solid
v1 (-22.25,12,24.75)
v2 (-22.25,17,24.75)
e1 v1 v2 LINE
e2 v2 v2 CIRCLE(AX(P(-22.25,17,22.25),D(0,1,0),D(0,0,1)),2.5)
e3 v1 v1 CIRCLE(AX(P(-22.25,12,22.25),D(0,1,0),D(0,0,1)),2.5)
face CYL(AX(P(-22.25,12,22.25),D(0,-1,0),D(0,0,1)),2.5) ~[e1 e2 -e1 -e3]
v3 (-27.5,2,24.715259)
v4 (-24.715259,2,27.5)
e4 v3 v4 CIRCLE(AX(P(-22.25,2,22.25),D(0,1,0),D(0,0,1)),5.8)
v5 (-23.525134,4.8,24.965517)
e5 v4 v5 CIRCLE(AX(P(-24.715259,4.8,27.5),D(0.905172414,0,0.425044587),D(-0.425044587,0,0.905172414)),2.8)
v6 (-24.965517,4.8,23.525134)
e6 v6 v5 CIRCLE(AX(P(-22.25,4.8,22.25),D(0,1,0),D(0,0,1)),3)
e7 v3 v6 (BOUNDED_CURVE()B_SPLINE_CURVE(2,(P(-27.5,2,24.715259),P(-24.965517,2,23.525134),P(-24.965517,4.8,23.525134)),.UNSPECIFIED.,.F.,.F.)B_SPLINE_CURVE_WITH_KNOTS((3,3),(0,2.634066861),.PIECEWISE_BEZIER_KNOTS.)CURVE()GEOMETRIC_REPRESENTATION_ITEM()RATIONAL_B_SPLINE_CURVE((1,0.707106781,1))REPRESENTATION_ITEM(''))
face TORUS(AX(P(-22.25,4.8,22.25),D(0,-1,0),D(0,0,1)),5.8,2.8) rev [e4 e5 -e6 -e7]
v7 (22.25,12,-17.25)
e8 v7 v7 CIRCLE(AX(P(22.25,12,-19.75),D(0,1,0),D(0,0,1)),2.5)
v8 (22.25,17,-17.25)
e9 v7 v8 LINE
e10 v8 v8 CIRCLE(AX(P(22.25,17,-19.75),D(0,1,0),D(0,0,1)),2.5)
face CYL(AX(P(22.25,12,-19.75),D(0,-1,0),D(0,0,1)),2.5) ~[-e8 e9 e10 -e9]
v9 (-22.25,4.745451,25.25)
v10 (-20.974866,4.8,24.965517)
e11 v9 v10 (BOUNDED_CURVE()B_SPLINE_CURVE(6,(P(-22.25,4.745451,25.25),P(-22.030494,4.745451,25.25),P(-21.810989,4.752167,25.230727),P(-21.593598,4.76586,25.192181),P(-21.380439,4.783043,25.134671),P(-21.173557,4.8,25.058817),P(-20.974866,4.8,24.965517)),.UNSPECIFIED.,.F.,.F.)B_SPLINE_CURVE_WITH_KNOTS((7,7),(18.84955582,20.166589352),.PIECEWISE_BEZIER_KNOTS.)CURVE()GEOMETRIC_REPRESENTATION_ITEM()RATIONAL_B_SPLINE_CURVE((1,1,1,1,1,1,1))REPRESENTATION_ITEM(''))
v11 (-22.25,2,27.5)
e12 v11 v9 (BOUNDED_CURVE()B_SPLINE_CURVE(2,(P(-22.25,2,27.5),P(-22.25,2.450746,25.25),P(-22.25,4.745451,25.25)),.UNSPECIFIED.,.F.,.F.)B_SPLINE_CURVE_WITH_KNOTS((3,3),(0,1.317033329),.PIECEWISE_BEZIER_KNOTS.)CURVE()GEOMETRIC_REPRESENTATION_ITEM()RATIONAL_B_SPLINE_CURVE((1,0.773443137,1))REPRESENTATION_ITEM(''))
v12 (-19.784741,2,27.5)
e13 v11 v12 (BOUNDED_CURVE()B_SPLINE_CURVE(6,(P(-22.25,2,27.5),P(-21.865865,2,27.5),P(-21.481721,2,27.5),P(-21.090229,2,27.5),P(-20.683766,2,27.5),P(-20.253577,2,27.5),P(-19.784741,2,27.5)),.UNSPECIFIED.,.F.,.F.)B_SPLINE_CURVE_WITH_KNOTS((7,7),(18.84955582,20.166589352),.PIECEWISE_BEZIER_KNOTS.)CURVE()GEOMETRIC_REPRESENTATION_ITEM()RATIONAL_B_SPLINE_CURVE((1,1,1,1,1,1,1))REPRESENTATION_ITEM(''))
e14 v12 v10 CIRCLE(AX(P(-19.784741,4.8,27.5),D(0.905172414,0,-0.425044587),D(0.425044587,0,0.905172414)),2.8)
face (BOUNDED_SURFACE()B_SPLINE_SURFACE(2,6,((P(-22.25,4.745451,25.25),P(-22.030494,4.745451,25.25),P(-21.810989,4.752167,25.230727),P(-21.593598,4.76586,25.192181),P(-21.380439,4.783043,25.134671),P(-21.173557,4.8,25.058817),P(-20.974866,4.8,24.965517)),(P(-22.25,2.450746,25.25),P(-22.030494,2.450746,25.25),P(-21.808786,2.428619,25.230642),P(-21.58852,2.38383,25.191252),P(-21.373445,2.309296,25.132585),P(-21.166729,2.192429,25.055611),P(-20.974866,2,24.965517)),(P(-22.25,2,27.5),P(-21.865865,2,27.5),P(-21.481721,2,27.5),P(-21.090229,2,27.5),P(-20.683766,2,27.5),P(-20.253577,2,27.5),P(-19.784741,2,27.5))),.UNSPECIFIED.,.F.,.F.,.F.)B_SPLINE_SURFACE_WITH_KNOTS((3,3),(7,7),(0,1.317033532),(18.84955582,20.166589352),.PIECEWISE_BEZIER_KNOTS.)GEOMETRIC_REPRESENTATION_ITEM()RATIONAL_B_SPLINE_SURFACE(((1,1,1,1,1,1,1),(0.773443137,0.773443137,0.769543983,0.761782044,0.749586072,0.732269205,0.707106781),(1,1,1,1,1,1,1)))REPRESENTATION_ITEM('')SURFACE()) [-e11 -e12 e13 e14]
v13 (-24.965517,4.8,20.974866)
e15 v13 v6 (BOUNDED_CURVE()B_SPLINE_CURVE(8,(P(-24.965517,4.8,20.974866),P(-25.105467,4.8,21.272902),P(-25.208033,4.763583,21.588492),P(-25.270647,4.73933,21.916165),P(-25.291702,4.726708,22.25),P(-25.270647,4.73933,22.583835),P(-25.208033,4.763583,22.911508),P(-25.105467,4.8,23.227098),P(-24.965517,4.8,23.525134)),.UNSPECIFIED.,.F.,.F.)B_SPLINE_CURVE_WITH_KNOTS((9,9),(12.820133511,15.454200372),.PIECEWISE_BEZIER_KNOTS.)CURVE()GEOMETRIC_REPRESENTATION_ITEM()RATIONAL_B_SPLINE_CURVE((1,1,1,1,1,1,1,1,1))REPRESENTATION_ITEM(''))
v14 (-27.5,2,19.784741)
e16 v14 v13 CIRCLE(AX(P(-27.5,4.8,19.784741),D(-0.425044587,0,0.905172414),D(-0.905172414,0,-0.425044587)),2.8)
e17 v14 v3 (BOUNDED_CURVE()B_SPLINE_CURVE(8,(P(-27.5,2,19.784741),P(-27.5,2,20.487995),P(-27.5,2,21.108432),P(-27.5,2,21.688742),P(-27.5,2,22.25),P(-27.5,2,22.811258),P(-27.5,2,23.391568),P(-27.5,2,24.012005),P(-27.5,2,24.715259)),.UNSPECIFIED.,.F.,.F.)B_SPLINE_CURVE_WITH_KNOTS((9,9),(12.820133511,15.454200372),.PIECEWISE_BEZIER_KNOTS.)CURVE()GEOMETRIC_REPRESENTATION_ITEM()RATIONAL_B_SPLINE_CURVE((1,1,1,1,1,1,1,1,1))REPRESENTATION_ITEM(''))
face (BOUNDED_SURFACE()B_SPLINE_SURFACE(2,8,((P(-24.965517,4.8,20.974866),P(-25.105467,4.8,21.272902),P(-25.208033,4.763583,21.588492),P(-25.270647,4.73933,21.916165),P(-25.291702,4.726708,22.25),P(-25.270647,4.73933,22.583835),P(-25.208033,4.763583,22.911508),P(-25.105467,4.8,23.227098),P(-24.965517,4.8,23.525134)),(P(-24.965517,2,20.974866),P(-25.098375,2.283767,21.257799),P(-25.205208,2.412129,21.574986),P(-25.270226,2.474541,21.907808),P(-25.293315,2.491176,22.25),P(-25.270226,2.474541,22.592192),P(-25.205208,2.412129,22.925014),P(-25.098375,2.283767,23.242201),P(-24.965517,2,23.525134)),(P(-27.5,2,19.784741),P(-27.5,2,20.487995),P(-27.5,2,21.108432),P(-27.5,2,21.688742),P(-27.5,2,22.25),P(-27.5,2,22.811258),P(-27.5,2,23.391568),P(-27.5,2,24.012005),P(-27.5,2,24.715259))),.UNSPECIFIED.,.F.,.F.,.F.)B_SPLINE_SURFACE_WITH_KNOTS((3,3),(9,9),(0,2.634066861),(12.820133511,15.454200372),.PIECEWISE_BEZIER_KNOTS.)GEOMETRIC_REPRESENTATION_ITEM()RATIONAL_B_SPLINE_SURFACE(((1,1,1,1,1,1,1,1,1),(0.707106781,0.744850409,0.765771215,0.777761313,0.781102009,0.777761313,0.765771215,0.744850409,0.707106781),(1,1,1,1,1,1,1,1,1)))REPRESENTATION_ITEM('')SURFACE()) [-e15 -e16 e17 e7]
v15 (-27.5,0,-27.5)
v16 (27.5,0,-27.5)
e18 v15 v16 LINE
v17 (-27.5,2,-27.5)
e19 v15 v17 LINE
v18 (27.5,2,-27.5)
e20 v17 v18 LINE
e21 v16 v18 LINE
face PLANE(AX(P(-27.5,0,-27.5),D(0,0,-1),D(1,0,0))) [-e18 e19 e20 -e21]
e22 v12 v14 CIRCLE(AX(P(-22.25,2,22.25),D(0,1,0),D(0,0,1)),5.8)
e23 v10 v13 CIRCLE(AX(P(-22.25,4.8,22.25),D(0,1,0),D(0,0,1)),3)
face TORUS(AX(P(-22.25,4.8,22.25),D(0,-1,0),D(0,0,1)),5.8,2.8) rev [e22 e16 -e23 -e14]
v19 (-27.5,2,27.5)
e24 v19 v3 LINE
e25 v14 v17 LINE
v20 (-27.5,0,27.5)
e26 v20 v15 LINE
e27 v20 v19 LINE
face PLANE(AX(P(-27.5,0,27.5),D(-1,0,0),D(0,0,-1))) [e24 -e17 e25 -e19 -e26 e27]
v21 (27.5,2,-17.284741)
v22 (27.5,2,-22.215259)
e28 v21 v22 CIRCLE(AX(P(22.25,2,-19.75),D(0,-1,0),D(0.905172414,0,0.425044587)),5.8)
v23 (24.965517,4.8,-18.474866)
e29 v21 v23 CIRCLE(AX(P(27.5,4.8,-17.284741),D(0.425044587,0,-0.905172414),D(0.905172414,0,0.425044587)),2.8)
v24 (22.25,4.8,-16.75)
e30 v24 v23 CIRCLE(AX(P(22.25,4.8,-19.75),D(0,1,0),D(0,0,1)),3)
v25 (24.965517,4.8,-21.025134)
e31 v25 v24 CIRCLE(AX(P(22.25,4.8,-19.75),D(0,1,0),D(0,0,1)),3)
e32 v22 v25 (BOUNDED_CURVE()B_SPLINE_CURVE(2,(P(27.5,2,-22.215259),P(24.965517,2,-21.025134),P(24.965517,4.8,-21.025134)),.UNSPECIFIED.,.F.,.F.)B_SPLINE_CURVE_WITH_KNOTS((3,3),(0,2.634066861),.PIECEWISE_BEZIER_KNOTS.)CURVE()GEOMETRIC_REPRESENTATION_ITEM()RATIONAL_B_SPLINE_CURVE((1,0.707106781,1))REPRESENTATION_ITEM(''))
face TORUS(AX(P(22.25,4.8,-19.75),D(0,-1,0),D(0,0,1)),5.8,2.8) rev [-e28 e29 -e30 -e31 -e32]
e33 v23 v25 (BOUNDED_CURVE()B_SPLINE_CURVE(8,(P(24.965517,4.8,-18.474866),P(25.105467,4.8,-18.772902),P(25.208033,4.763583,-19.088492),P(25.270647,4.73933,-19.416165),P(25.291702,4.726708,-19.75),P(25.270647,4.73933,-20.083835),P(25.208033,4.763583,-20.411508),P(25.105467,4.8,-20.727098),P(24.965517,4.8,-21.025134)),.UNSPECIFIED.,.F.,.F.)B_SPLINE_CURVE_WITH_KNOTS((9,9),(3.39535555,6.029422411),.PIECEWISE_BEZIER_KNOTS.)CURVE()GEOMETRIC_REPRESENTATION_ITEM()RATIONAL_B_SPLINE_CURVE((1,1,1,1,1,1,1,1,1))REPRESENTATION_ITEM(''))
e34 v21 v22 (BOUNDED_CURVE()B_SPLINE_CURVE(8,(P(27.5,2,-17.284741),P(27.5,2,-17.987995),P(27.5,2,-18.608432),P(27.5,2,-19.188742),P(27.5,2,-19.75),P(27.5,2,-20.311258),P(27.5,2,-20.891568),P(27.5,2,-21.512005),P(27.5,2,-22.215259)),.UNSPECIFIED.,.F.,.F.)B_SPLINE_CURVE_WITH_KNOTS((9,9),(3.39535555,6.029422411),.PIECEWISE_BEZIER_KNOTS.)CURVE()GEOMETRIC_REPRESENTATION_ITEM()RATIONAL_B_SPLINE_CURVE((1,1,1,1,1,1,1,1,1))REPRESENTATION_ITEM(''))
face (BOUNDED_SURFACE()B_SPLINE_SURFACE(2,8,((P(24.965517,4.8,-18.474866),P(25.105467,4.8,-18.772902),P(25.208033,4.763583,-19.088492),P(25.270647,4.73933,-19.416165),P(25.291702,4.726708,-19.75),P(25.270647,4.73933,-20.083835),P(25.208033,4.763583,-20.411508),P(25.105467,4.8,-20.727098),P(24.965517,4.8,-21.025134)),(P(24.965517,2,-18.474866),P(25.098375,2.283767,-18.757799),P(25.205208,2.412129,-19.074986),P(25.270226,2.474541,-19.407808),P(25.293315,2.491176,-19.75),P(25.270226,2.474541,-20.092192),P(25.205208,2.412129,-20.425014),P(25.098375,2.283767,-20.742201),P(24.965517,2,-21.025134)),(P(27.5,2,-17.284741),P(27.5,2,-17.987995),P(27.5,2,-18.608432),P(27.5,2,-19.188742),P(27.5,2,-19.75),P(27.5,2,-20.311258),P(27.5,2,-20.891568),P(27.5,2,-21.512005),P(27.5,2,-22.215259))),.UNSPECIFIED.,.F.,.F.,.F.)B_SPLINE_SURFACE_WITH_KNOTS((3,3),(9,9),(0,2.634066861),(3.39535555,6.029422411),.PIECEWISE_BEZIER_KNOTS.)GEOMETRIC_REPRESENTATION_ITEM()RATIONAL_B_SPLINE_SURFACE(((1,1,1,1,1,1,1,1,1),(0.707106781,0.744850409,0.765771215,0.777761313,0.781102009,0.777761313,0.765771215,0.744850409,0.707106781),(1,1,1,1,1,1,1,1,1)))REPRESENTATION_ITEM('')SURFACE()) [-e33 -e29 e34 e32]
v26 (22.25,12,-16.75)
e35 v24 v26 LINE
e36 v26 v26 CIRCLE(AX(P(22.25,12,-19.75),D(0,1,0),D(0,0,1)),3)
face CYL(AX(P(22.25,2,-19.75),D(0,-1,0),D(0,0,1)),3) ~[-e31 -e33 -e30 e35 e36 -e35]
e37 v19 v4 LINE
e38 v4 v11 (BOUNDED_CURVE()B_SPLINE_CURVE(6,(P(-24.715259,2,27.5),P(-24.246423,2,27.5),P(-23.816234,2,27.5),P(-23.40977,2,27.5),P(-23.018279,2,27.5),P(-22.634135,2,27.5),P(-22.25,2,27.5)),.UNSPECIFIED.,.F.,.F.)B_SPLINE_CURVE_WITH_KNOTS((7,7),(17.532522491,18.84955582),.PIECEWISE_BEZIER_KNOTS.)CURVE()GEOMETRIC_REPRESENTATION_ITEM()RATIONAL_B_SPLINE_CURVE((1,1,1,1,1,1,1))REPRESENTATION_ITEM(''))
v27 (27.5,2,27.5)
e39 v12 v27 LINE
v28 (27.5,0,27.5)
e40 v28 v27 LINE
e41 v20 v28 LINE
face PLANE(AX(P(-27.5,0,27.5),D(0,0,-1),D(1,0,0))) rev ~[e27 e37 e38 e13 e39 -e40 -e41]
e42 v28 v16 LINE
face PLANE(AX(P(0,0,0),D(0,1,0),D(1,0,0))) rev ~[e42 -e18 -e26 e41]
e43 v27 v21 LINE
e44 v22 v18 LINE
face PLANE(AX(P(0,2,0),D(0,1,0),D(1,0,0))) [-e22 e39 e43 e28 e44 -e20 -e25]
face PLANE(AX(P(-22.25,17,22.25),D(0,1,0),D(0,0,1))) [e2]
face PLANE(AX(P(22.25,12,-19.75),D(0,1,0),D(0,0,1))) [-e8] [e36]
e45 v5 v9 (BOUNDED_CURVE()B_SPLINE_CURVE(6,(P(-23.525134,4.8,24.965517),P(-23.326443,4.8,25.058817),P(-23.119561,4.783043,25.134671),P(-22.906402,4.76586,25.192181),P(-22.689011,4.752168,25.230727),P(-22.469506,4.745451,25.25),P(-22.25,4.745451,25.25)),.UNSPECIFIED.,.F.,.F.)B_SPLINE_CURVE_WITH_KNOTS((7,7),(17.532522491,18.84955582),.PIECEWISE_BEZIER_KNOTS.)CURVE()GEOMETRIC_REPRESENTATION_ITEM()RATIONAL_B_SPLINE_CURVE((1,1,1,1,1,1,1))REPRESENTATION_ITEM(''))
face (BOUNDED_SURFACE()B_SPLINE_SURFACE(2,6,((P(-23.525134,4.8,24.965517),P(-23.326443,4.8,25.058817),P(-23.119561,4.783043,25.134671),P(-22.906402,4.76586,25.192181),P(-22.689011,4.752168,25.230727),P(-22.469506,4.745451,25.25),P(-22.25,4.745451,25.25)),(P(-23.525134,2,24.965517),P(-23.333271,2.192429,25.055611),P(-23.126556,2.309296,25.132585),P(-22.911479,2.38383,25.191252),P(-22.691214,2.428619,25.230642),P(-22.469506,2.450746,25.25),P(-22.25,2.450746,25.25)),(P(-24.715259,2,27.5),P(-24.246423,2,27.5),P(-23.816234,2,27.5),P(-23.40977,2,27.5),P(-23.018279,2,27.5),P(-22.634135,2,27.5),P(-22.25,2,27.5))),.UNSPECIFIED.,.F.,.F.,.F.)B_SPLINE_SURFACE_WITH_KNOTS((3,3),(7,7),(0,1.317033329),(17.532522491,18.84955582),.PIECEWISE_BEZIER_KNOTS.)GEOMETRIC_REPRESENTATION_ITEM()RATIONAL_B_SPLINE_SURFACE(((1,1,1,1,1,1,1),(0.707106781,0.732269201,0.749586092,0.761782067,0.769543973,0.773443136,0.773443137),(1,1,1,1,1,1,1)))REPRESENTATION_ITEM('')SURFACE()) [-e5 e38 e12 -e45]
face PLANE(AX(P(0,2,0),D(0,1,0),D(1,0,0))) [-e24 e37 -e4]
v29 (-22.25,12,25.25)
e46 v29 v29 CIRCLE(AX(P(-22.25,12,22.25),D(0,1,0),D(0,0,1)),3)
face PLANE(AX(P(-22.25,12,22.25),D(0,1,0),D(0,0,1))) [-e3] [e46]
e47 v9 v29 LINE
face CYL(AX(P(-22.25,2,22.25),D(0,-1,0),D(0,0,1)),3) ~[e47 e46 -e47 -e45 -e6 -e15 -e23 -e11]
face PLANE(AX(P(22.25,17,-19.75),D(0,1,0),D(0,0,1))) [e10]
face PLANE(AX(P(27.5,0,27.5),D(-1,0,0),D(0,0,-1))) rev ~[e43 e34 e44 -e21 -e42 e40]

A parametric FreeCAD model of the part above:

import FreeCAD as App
import Part
import Sketcher

V = App.Vector


def edges_at(feature, points):
    """Names of the edges that pass closest to the given points."""
    edges = feature.Shape.Edges
    near = lambda p: min(range(len(edges)), key=lambda i: edges[i].distToShape(Part.Vertex(*p))[0])
    return sorted({f"Edge{near(p) + 1}" for p in points})


def add_polygon(sketch, points):
    """Adds a closed chain of lines whose ends are joined by coincident constraints."""
    first, n = sketch.GeometryCount, len(points)
    for a, b in zip(points, points[1:] + points[:1]):
        sketch.addGeometry(Part.LineSegment(App.Vector(*a, 0), App.Vector(*b, 0)), False)
    for i in range(n):
        sketch.addConstraint(Sketcher.Constraint("Coincident", first + i, 2, first + (i + 1) % n, 1))

doc = App.newDocument("Part")
body = doc.addObject("PartDesign::Body", "Body")

# Sketch on XZ plane
sketch1 = doc.addObject("Sketcher::SketchObject", "Sketch")
body.addObject(sketch1)
sketch1.AttachmentSupport = (doc.XZ_Plane, [""])
sketch1.MapMode = "FlatFace"
add_polygon(sketch1, [(-28, -28), (-28, 28), (28, 28), (28, -28)])  # lines 0-3
sketch1.addConstraint([
    Sketcher.Constraint("Vertical", 0),
    Sketcher.Constraint("Horizontal", 1),
    Sketcher.Constraint("Vertical", 2),
    Sketcher.Constraint("Horizontal", 3),
    Sketcher.Constraint("Symmetric", 0, 2, 2, 2, -1, 1),
    Sketcher.Constraint("Equal", 3, 0),
    Sketcher.Constraint("DistanceX", 1, 1, 1, 2, 55.0),
])
pad1 = doc.addObject("PartDesign::Pad", "Pad")
body.addObject(pad1)
pad1.Profile = sketch1
pad1.Length = 2
pad1.Reversed = True

# Sketch on XZ plane
sketch2 = doc.addObject("Sketcher::SketchObject", "Sketch001")
body.addObject(sketch2)
sketch2.AttachmentSupport = (doc.XZ_Plane, [""])
sketch2.MapMode = "FlatFace"
sketch2.AttachmentOffset = App.Placement(V(0, 0, -2), App.Rotation())
sketch2.addGeometry([
    Part.Circle(V(-22.2, 22.2, 0), V(0, 0, 1), 3),
    Part.Circle(V(22.2, -19.8, 0), V(0, 0, 1), 3),
], False)
sketch2.addConstraint([
    Sketcher.Constraint("Equal", 0, 1),
    Sketcher.Constraint("Diameter", 0, 6.0),
    Sketcher.Constraint("DistanceY", 1, 3, 0, 3, 42.0),
    Sketcher.Constraint("DistanceX", 0, 3, 1, 3, 44.5),
    Sketcher.Constraint("DistanceX", 0, 3, -1, 1, 22.25),
    Sketcher.Constraint("DistanceY", -1, 1, 0, 3, 22.25),
])
pad2 = doc.addObject("PartDesign::Pad", "Pad001")
body.addObject(pad2)
pad2.Profile = sketch2
pad2.Length = 10
pad2.Reversed = True
doc.recompute()

fillet = doc.addObject("PartDesign::Fillet", "Fillet")
body.addObject(fillet)
fillet.Base = (pad2, edges_at(pad2, [(-22.25, 2, 19.25), (22.25, 2, -22.75)]))
fillet.Radius = 2.8

# Sketch on XZ plane
sketch3 = doc.addObject("Sketcher::SketchObject", "Sketch002")
body.addObject(sketch3)
sketch3.AttachmentSupport = (doc.XZ_Plane, [""])
sketch3.MapMode = "FlatFace"
sketch3.AttachmentOffset = App.Placement(V(0, 0, -12), App.Rotation())
sketch3.addGeometry([
    Part.Circle(V(-22.2, 22.2, 0), V(0, 0, 1), 2.5),
    Part.Circle(V(22.2, -19.8, 0), V(0, 0, 1), 2.5),
], False)
sketch3.addConstraint([
    Sketcher.Constraint("Equal", 0, 1),
    Sketcher.Constraint("Diameter", 0, 5.0),
    Sketcher.Constraint("DistanceY", 1, 3, 0, 3, 42.0),
    Sketcher.Constraint("DistanceX", 0, 3, 1, 3, 44.5),
    Sketcher.Constraint("DistanceX", 0, 3, -1, 1, 22.25),
    Sketcher.Constraint("DistanceY", -1, 1, 0, 3, 22.25),
])
pad3 = doc.addObject("PartDesign::Pad", "Pad002")
body.addObject(pad3)
pad3.Profile = sketch3
pad3.Length = 5
pad3.Reversed = True

doc.recompute()
